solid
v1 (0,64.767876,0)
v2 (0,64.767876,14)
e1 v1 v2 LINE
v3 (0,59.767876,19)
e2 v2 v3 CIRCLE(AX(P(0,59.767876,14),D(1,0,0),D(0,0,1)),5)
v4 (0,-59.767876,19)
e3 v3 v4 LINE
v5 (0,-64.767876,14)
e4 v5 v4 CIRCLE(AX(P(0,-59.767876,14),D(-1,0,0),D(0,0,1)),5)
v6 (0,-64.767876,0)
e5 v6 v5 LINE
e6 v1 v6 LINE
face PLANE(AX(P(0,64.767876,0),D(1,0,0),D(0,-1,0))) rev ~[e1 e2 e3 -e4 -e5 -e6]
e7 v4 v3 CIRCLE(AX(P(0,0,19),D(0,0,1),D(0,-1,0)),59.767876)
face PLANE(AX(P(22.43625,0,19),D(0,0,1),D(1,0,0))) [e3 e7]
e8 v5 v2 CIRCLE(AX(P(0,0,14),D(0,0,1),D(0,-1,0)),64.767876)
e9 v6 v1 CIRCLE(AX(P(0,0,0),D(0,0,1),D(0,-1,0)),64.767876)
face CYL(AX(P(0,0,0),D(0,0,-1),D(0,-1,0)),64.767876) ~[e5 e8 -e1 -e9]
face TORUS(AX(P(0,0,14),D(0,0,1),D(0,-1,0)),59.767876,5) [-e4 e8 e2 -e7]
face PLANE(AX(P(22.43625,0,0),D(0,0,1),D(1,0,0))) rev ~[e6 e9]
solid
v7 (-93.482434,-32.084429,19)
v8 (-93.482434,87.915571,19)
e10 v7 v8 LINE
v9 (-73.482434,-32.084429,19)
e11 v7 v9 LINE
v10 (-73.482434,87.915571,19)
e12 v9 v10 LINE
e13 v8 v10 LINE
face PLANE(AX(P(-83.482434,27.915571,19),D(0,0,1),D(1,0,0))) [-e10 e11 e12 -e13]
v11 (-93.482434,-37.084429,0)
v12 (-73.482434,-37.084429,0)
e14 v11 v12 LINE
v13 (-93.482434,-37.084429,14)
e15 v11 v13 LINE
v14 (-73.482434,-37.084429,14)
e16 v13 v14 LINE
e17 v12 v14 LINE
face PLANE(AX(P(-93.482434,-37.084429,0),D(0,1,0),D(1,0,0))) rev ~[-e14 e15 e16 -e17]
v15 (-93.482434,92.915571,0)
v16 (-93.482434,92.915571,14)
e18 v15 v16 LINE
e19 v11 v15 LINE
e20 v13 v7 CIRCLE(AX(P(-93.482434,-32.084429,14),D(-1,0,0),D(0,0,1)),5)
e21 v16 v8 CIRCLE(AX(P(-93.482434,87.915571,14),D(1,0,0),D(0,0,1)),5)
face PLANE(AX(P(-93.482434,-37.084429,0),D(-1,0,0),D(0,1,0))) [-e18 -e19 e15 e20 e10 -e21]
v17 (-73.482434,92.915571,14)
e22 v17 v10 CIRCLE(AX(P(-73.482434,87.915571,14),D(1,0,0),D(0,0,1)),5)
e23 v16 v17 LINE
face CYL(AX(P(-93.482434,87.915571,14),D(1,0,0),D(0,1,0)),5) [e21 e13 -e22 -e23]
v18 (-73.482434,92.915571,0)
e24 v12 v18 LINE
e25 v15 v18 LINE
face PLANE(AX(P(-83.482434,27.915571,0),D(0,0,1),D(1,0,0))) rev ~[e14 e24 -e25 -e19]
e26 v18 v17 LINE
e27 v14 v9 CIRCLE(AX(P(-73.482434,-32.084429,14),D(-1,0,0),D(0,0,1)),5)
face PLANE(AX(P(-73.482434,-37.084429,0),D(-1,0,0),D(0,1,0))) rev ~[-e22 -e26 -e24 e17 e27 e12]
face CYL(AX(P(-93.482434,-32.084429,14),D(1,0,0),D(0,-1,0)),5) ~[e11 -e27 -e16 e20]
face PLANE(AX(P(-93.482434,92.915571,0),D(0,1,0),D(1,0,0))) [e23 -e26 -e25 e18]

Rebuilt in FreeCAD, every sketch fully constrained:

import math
import FreeCAD as App
import Part
import Sketcher
Q = App.Units.Quantity


def edges_at(feature, points):
    """Names of the edges that pass closest to the given points."""
    edges = feature.Shape.Edges
    near = lambda p: min(range(len(edges)), key=lambda i: edges[i].distToShape(Part.Vertex(*p))[0])
    return sorted({f"Edge{near(p) + 1}" for p in points})

doc = App.newDocument("Part")
params = doc.addObject("Spreadsheet::Sheet", "Params")
for row, (alias, value) in enumerate([
    ("pad1_length", "19 mm"),
    ("fillet_radius", "5 mm"),
    ("sketch2_width", "20 mm"),
    ("sketch2_height", "130 mm"),
    ("pad2_length", "19 mm"),
    ("fillet2_radius", "5 mm"),
], start=1):
    params.set(f"A{row}", alias)
    params.set(f"B{row}", "=" + value)
    params.setAlias(f"B{row}", alias)

body = doc.addObject("PartDesign::Body", "Body")

sketch1 = body.newObject("Sketcher::SketchObject", "Sketch")
sketch1.AttachmentSupport = (doc.getObject("XY_Plane"), [""])
sketch1.MapMode = "FlatFace"
sketch1.addGeometry([
    Part.LineSegment(App.Vector(0, 64.767876, 0), App.Vector(0, -64.767876, 0)),
    Part.ArcOfCircle(Part.Circle(App.Vector(0, 0, 0), App.Vector(0, 0, 1), 64.767876), math.radians(-90), math.radians(90)),
], False)
sketch1.addConstraint([
    Sketcher.Constraint("Coincident", 0, 1, 1, 2),
    Sketcher.Constraint("Coincident", 1, 1, 0, 2),
    Sketcher.Constraint("Vertical", 0),
    Sketcher.Constraint("Coincident", 1, 3, -1, 1),
    Sketcher.Constraint("PointOnObject", 0, 1, -2),
    Sketcher.Constraint("Radius", 1, Q("64.767876 mm")),
])
pad1 = body.newObject("PartDesign::Pad", "Pad")
pad1.Profile = sketch1
pad1.setExpression("Length", "Params.pad1_length")
doc.recompute()

fillet = body.newObject("PartDesign::Fillet", "Fillet")
fillet.Base = (pad1, edges_at(pad1, [(64.768, 0, 19)]))
fillet.setExpression("Radius", "Params.fillet_radius")
body2 = doc.addObject("PartDesign::Body", "Body001")

sketch2 = body2.newObject("Sketcher::SketchObject", "Sketch001")
sketch2.AttachmentSupport = (doc.getObject("XY_Plane001"), [""])
sketch2.MapMode = "FlatFace"
sketch2.addGeometry([
    Part.LineSegment(App.Vector(-93.482434, 92.915571, 0), App.Vector(-93.482434, -37.084429, 0)),
    Part.LineSegment(App.Vector(-93.482434, -37.084429, 0), App.Vector(-73.482434, -37.084429, 0)),
    Part.LineSegment(App.Vector(-73.482434, -37.084429, 0), App.Vector(-73.482434, 92.915571, 0)),
    Part.LineSegment(App.Vector(-73.482434, 92.915571, 0), App.Vector(-93.482434, 92.915571, 0)),
], False)
sketch2.addConstraint([
    Sketcher.Constraint("Coincident", 0, 2, 1, 1),
    Sketcher.Constraint("Coincident", 1, 2, 2, 1),
    Sketcher.Constraint("Coincident", 2, 2, 3, 1),
    Sketcher.Constraint("Coincident", 3, 2, 0, 1),
    Sketcher.Constraint("Vertical", 0),
    Sketcher.Constraint("Horizontal", 1),
    Sketcher.Constraint("Vertical", 2),
    Sketcher.Constraint("Horizontal", 3),
    Sketcher.Constraint("DistanceX", 1, 1, 1, 2, Q("20 mm")),
    Sketcher.Constraint("DistanceY", 0, 2, 0, 1, Q("130 mm")),
    Sketcher.Constraint("DistanceY", 0, 2, -1, 1, Q("37.084429 mm")),
    Sketcher.Constraint("DistanceX", 0, 2, -1, 1, Q("93.482434 mm")),
])
sketch2.setExpression("Constraints[8]", "Params.sketch2_width")
sketch2.setExpression("Constraints[9]", "Params.sketch2_height")
pad2 = body2.newObject("PartDesign::Pad", "Pad001")
pad2.Profile = sketch2
pad2.setExpression("Length", "Params.pad2_length")
doc.recompute()

fillet2 = body2.newObject("PartDesign::Fillet", "Fillet001")
fillet2.Base = (pad2, edges_at(pad2, [(-83.482, -37.084, 19), (-83.482, 92.916, 19)]))
fillet2.setExpression("Radius", "Params.fillet2_radius")

doc.recompute()
